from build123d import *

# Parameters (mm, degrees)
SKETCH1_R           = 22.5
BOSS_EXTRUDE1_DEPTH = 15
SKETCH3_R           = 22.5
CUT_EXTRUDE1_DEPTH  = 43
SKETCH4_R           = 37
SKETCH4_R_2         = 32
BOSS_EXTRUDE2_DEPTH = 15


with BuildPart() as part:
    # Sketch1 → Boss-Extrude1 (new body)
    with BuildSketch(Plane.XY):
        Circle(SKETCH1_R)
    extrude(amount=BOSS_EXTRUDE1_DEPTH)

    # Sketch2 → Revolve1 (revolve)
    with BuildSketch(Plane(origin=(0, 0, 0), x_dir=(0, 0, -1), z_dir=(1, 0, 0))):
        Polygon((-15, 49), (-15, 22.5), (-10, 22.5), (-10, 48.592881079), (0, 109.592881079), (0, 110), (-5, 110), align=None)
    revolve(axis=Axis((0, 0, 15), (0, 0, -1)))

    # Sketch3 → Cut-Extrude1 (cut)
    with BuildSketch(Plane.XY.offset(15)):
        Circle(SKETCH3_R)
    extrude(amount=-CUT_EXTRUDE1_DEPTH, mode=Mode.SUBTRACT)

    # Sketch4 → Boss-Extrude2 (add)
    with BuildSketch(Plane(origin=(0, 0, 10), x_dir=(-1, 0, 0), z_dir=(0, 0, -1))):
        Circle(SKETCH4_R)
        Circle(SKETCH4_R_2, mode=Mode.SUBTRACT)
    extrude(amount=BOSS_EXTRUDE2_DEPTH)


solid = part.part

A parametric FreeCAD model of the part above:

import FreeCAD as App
import Part
import Sketcher
from FreeCAD import Vector

doc = App.newDocument("Part")
params = doc.addObject("Spreadsheet::Sheet", "Params")
for row, (alias, value) in enumerate([
    ("sketch1_diameter", "45 mm"),
    ("pad1_length", "15 mm"),
    ("sketch2_height", "5 mm"),
    ("sketch2_width", "26.5 mm"),
    ("revolution_angle", "360 deg"),
    ("sketch3_diameter", "45 mm"),
    ("pocket1_length", "43 mm"),
    ("sketch4_diameter", "74 mm"),
    ("sketch4_diameter2", "64 mm"),
    ("pad2_length", "15 mm"),
], start=1):
    params.set(f"A{row}", alias)
    params.set(f"B{row}", "=" + value)
    params.setAlias(f"B{row}", alias)

body = doc.addObject("PartDesign::Body", "Body")

# Sketch on XY plane
sketch1 = body.newObject("Sketcher::SketchObject", "Sketch")
sketch1.AttachmentSupport = (doc.getObject("XY_Plane"), [""])
sketch1.MapMode = "FlatFace"
sketch1.addGeometry(Part.Circle(Vector(0, 0, 0), Vector(0, 0, 1), 22), False)
sketch1.addConstraint(Sketcher.Constraint("Coincident", 0, 3, -1, 1))
sketch1.addConstraint(Sketcher.Constraint("Diameter", 0, 45.0))
sketch1.setExpression("Constraints[1]", "Params.sketch1_diameter")
pad1 = body.newObject("PartDesign::Pad", "Pad")
pad1.Profile = sketch1
pad1.setExpression("Length", "Params.pad1_length")

# Sketch on YZ plane
sketch2 = body.newObject("Sketcher::SketchObject", "Sketch001")
sketch2.AttachmentSupport = (doc.getObject("YZ_Plane"), [""])
sketch2.MapMode = "FlatFace"
sketch2.addGeometry(Part.LineSegment(Vector(49, 15, 0), Vector(22.5, 15, 0)), False)
sketch2.addGeometry(Part.LineSegment(Vector(22.5, 15, 0), Vector(22.5, 10, 0)), False)
sketch2.addGeometry(Part.LineSegment(Vector(22.5, 10, 0), Vector(48.59, 10, 0)), False)
sketch2.addGeometry(Part.LineSegment(Vector(48.59, 10, 0), Vector(109.59, 0, 0)), False)
sketch2.addGeometry(Part.LineSegment(Vector(109.59, 0, 0), Vector(110, 0, 0)), False)
sketch2.addGeometry(Part.LineSegment(Vector(110, 0, 0), Vector(110, 5, 0)), False)
sketch2.addGeometry(Part.LineSegment(Vector(110, 5, 0), Vector(49, 15, 0)), False)
sketch2.addConstraint(Sketcher.Constraint("Coincident", 0, 2, 1, 1))
sketch2.addConstraint(Sketcher.Constraint("Coincident", 1, 2, 2, 1))
sketch2.addConstraint(Sketcher.Constraint("Coincident", 2, 2, 3, 1))
sketch2.addConstraint(Sketcher.Constraint("Coincident", 3, 2, 4, 1))
sketch2.addConstraint(Sketcher.Constraint("Coincident", 4, 2, 5, 1))
sketch2.addConstraint(Sketcher.Constraint("Coincident", 5, 2, 6, 1))
sketch2.addConstraint(Sketcher.Constraint("Coincident", 6, 2, 0, 1))
sketch2.addConstraint(Sketcher.Constraint("Horizontal", 0))
sketch2.addConstraint(Sketcher.Constraint("Vertical", 1))
sketch2.addConstraint(Sketcher.Constraint("Horizontal", 2))
sketch2.addConstraint(Sketcher.Constraint("Horizontal", 4))
sketch2.addConstraint(Sketcher.Constraint("Vertical", 5))
sketch2.addConstraint(Sketcher.Constraint("PointOnObject", 3, 2, -1))
sketch2.addConstraint(Sketcher.Constraint("Parallel", 3, 6))
sketch2.addConstraint(Sketcher.Constraint("Equal", 1, 5))
sketch2.addConstraint(Sketcher.Constraint("DistanceY", 1, 2, 1, 1, 5.0))
sketch2.addConstraint(Sketcher.Constraint("DistanceX", 0, 2, 0, 1, 26.5))
sketch2.addConstraint(Sketcher.Constraint("DistanceY", -1, 1, 0, 2, 15.0))
sketch2.addConstraint(Sketcher.Constraint("DistanceX", -1, 1, 4, 2, 110.0))
sketch2.addConstraint(Sketcher.Constraint("DistanceX", -1, 1, 6, 2, 49.0))
sketch2.addConstraint(Sketcher.Constraint("DistanceX", 2, 1, 2, 2, 26.092881))
sketch2.setExpression("Constraints[15]", "Params.sketch2_height")
sketch2.setExpression("Constraints[16]", "Params.sketch2_width")
revolution = body.newObject("PartDesign::Revolution", "Revolution")
revolution.Profile = sketch2
revolution.ReferenceAxis = (sketch2, ["V_Axis"])
revolution.setExpression("Angle", "Params.revolution_angle")

# Sketch on XY plane
sketch3 = body.newObject("Sketcher::SketchObject", "Sketch002")
sketch3.AttachmentSupport = (doc.getObject("XY_Plane"), [""])
sketch3.MapMode = "FlatFace"
sketch3.AttachmentOffset = App.Placement(Vector(0, 0, 15), App.Rotation())
sketch3.addGeometry(Part.Circle(Vector(0, 0, 0), Vector(0, 0, 1), 22), False)
sketch3.addConstraint(Sketcher.Constraint("Coincident", 0, 3, -1, 1))
sketch3.addConstraint(Sketcher.Constraint("Diameter", 0, 45.0))
sketch3.setExpression("Constraints[1]", "Params.sketch3_diameter")
pocket1 = body.newObject("PartDesign::Pocket", "Pocket")
pocket1.Profile = sketch3
pocket1.setExpression("Length", "Params.pocket1_length")

# Sketch on XY plane
sketch4 = body.newObject("Sketcher::SketchObject", "Sketch003")
sketch4.AttachmentSupport = (doc.getObject("XY_Plane"), [""])
sketch4.MapMode = "FlatFace"
sketch4.AttachmentOffset = App.Placement(Vector(0, 0, 10), App.Rotation())
sketch4.addGeometry(Part.Circle(Vector(0, 0, 0), Vector(0, 0, 1), 37), False)
sketch4.addGeometry(Part.Circle(Vector(0, 0, 0), Vector(0, 0, 1), 32), False)
sketch4.addConstraint(Sketcher.Constraint("Coincident", 0, 3, -1, 1))
sketch4.addConstraint(Sketcher.Constraint("Coincident", 1, 3, -1, 1))
sketch4.addConstraint(Sketcher.Constraint("Diameter", 0, 74.0))
sketch4.addConstraint(Sketcher.Constraint("Diameter", 1, 64.0))
sketch4.setExpression("Constraints[2]", "Params.sketch4_diameter")
sketch4.setExpression("Constraints[3]", "Params.sketch4_diameter2")
pad2 = body.newObject("PartDesign::Pad", "Pad001")
pad2.Profile = sketch4
pad2.setExpression("Length", "Params.pad2_length")
pad2.Reversed = True

doc.recompute()
